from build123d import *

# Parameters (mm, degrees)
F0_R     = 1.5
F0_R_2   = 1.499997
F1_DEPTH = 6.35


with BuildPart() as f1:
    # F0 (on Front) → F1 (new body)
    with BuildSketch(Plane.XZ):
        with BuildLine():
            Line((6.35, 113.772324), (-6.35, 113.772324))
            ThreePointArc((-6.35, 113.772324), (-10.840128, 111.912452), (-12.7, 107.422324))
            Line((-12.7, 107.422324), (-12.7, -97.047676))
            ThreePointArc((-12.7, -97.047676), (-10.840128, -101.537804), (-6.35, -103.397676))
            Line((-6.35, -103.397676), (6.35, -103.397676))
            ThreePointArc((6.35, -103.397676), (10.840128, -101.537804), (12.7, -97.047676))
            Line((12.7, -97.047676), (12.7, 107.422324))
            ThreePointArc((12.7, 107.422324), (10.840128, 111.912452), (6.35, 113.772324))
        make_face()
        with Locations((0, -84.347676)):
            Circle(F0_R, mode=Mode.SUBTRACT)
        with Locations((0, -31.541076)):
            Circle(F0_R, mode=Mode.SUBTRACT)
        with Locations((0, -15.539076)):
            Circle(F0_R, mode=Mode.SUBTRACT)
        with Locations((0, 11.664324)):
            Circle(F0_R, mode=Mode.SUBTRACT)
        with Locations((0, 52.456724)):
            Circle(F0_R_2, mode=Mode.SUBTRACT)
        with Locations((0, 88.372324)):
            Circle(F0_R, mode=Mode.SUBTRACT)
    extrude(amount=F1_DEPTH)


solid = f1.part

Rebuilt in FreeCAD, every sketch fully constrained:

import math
import FreeCAD as App
import Part
import Sketcher

V = App.Vector
Q = App.Units.Quantity

doc = App.newDocument("Part")
body = doc.addObject("PartDesign::Body", "Body")

# Sketch on XZ plane
sketch1 = body.newObject("Sketcher::SketchObject", "Sketch")
sketch1.AttachmentSupport = (doc.getObject("XZ_Plane"), [""])
sketch1.MapMode = "FlatFace"
sketch1.addGeometry([
    Part.LineSegment(V(6.3, 113.8, 0), V(-6.3, 113.8, 0)),  # 0
    Part.ArcOfCircle(Part.Circle(V(-6.3, 107.4, 0), V(0, 0, 1), 6.4), math.radians(90), math.radians(180)),  # 1
    Part.LineSegment(V(-12.7, 107.4, 0), V(-12.7, -97, 0)),  # 2
    Part.ArcOfCircle(Part.Circle(V(-6.3, -97, 0), V(0, 0, 1), 6.4), math.radians(-180), math.radians(-90)),  # 3
    Part.LineSegment(V(-6.3, -103.4, 0), V(6.3, -103.4, 0)),  # 4
    Part.ArcOfCircle(Part.Circle(V(6.3, -97, 0), V(0, 0, 1), 6.4), math.radians(-90), math.radians(0)),  # 5
    Part.LineSegment(V(12.7, -97, 0), V(12.7, 107.4, 0)),  # 6
    Part.ArcOfCircle(Part.Circle(V(6.3, 107.4, 0), V(0, 0, 1), 6.4), math.radians(0), math.radians(90)),  # 7
    Part.Circle(V(0, -84.3, 0), V(0, 0, 1), 1.5),  # 8
    Part.Circle(V(0, -31.5, 0), V(0, 0, 1), 1.5),  # 9
    Part.Circle(V(0, -15.5, 0), V(0, 0, 1), 1.5),  # 10
    Part.Circle(V(0, 11.7, 0), V(0, 0, 1), 1.5),  # 11
    Part.Circle(V(0, 52.5, 0), V(0, 0, 1), 1.5),  # 12
    Part.Circle(V(0, 88.4, 0), V(0, 0, 1), 1.5),  # 13
], False)
sketch1.addConstraint([
    Sketcher.Constraint("Tangent", 0, 2, 1, 1),
    Sketcher.Constraint("Tangent", 1, 2, 2, 1),
    Sketcher.Constraint("Tangent", 2, 2, 3, 1),
    Sketcher.Constraint("Tangent", 3, 2, 4, 1),
    Sketcher.Constraint("Tangent", 4, 2, 5, 1),
    Sketcher.Constraint("Tangent", 5, 2, 6, 1),
    Sketcher.Constraint("Tangent", 6, 2, 7, 1),
    Sketcher.Constraint("Tangent", 7, 2, 0, 1),
    Sketcher.Constraint("Horizontal", 0),
    Sketcher.Constraint("Vertical", 2),
    Sketcher.Constraint("Horizontal", 4),
    Sketcher.Constraint("Vertical", 6),
    Sketcher.Constraint("Equal", 1, 3),
    Sketcher.Constraint("Equal", 3, 5),
    Sketcher.Constraint("Equal", 5, 7),
    Sketcher.Constraint("Equal", 8, 9),
    Sketcher.Constraint("Equal", 9, 10),
    Sketcher.Constraint("Equal", 10, 11),
    Sketcher.Constraint("Equal", 11, 13),
    Sketcher.Constraint("PointOnObject", 8, 3, -2),
    Sketcher.Constraint("PointOnObject", 9, 3, -2),
    Sketcher.Constraint("PointOnObject", 10, 3, -2),
    Sketcher.Constraint("PointOnObject", 11, 3, -2),
    Sketcher.Constraint("PointOnObject", 12, 3, -2),
    Sketcher.Constraint("PointOnObject", 13, 3, -2),
    Sketcher.Constraint("Radius", 1, Q("0.25 in")),
    Sketcher.Constraint("DistanceX", 0, 2, 0, 1, Q("0.5 in")),
    Sketcher.Constraint("DistanceY", 13, 3, 0, 2, Q("1 in")),
    Sketcher.Constraint("DistanceY", 2, 2, 2, 1, Q("8.05 in")),
    Sketcher.Constraint("DistanceX", 1, 2, -1, 1, Q("0.5 in")),
    Sketcher.Constraint("DistanceY", 3, 3, 8, 3, Q("0.5 in")),
    Sketcher.Constraint("Diameter", 8, 3.0),
    Sketcher.Constraint("DistanceY", 9, 3, 10, 3, Q("0.63 in")),
    Sketcher.Constraint("DistanceY", 11, 3, 1, 3, Q("3.77 in")),
    Sketcher.Constraint("DistanceY", 8, 3, 9, 3, Q("2.079 in")),
    Sketcher.Constraint("DistanceY", 11, 3, 12, 3, Q("1.606 in")),
    Sketcher.Constraint("Diameter", 12, 2.999994),
    Sketcher.Constraint("DistanceY", -1, 1, 1, 3, 107.422324),
])
pad1 = body.newObject("PartDesign::Pad", "Pad")
pad1.Profile = sketch1
pad1.Length = Q("0.25 in")

doc.recompute()
